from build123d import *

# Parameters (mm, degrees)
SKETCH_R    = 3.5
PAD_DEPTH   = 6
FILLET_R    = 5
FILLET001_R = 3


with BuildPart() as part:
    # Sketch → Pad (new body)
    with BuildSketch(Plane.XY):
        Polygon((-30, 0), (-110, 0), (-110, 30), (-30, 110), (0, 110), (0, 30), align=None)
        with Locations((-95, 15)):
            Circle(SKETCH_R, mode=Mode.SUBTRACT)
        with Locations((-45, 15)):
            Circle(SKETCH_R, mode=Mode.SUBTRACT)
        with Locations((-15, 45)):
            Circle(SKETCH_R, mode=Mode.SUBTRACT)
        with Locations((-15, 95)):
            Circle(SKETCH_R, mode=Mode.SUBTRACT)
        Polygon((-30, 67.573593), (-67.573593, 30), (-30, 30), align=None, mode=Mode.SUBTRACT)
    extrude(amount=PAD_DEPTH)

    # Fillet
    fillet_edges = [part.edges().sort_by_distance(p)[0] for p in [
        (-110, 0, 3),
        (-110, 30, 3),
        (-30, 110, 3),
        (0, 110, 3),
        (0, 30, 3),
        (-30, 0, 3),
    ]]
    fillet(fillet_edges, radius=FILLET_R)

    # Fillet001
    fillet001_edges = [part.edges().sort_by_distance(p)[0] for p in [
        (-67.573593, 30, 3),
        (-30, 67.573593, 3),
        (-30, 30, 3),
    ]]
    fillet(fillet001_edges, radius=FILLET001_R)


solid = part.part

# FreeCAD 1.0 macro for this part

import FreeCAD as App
import Part
import Sketcher
from FreeCAD import Vector
Q = App.Units.Quantity


def edges_at(feature, points):
    """Names of the edges that pass closest to the given points."""
    edges = feature.Shape.Edges
    near = lambda p: min(range(len(edges)), key=lambda i: edges[i].distToShape(Part.Vertex(*p))[0])
    return sorted({f"Edge{near(p) + 1}" for p in points})


def add_polygon(sketch, points):
    """Adds a closed chain of lines whose ends are joined by coincident constraints."""
    first, n = sketch.GeometryCount, len(points)
    for a, b in zip(points, points[1:] + points[:1]):
        sketch.addGeometry(Part.LineSegment(App.Vector(*a, 0), App.Vector(*b, 0)), False)
    for i in range(n):
        sketch.addConstraint(Sketcher.Constraint("Coincident", first + i, 2, first + (i + 1) % n, 1))

doc = App.newDocument("Part")
body = doc.addObject("PartDesign::Body", "Body")

sketch1 = body.newObject("Sketcher::SketchObject", "Sketch")
sketch1.AttachmentSupport = (doc.getObject("XY_Plane"), [""])
sketch1.MapMode = "FlatFace"
add_polygon(sketch1, [(-110, 0), (-30, 0), (0, 30), (0, 110), (-30, 110), (-110, 30)])
sketch1.addGeometry(Part.Circle(Vector(-45, 15, 0), Vector(0, 0, 1), 3.5), False)
sketch1.addGeometry(Part.Circle(Vector(-15, 45, 0), Vector(0, 0, 1), 3.5), False)
add_polygon(sketch1, [(-30, 67.573593), (-30, 30), (-67.573593, 30)])
sketch1.addGeometry(Part.Circle(Vector(-95, 15, 0), Vector(0, 0, 1), 3.5), False)
sketch1.addGeometry(Part.Circle(Vector(-15, 95, 0), Vector(0, 0, 1), 3.5), False)
sketch1.addConstraint([
    Sketcher.Constraint("Horizontal", 0),
    Sketcher.Constraint("Vertical", 2),
    Sketcher.Constraint("Horizontal", 3),
    Sketcher.Constraint("Vertical", 5),
    Sketcher.Constraint("Vertical", 8),
    Sketcher.Constraint("Horizontal", 9),
    Sketcher.Constraint("Equal", 6, 7),
    Sketcher.Constraint("Equal", 7, 11),
    Sketcher.Constraint("Equal", 11, 12),
    Sketcher.Constraint("PointOnObject", 0, 2, -1),
    Sketcher.Constraint("PointOnObject", 1, 2, -2),
    Sketcher.Constraint("Parallel", 1, 4),
    Sketcher.Constraint("Parallel", 4, 10),
    Sketcher.Constraint("Horizontal", 6, 3, 11, 3),
    Sketcher.Constraint("Horizontal", 1, 2, 4, 2),
    Sketcher.Constraint("Horizontal", 4, 2, 8, 2),
    Sketcher.Constraint("Vertical", 7, 3, 12, 3),
    Sketcher.Constraint("Vertical", 0, 2, 3, 2),
    Sketcher.Constraint("Vertical", 3, 2, 8, 2),
    Sketcher.Constraint("Equal", 0, 2),
    Sketcher.Constraint("Diameter", 6, Q("7 mm")),
    Sketcher.Constraint("DistanceX", 0, 1, 0, 2, Q("80 mm")),
    Sketcher.Constraint("DistanceX", 3, 2, 3, 1, Q("30 mm")),
    Sketcher.Constraint("DistanceX", 6, 3, -1, 1, Q("45 mm")),
    Sketcher.Constraint("DistanceY", -1, 1, 6, 3, Q("15 mm")),
    Sketcher.Constraint("DistanceX", 7, 3, -1, 1, Q("15 mm")),
    Sketcher.Constraint("DistanceY", -1, 1, 7, 3, Q("45 mm")),
    Sketcher.Constraint("DistanceX", 11, 3, -1, 1, Q("95 mm")),
    Sketcher.Constraint("DistanceY", -1, 1, 12, 3, Q("95 mm")),
    Sketcher.Constraint("DistanceX", 9, 2, 9, 1, Q("37.573593 mm")),
])
pad1 = body.newObject("PartDesign::Pad", "Pad")
pad1.Profile = sketch1
pad1.Length = 6
doc.recompute()

fillet = body.newObject("PartDesign::Fillet", "Fillet")
fillet.Base = (pad1, edges_at(pad1, [
    (-110, 0, 3),
    (-110, 30, 3),
    (-30, 110, 3),
    (0, 110, 3),
    (0, 30, 3),
    (-30, 0, 3),
]))
fillet.Radius = 5
doc.recompute()

fillet2 = body.newObject("PartDesign::Fillet", "Fillet001")
fillet2.Base = (fillet, edges_at(fillet, [(-67.574, 30, 3), (-30, 67.574, 3), (-30, 30, 3)]))
fillet2.Radius = 3

doc.recompute()
